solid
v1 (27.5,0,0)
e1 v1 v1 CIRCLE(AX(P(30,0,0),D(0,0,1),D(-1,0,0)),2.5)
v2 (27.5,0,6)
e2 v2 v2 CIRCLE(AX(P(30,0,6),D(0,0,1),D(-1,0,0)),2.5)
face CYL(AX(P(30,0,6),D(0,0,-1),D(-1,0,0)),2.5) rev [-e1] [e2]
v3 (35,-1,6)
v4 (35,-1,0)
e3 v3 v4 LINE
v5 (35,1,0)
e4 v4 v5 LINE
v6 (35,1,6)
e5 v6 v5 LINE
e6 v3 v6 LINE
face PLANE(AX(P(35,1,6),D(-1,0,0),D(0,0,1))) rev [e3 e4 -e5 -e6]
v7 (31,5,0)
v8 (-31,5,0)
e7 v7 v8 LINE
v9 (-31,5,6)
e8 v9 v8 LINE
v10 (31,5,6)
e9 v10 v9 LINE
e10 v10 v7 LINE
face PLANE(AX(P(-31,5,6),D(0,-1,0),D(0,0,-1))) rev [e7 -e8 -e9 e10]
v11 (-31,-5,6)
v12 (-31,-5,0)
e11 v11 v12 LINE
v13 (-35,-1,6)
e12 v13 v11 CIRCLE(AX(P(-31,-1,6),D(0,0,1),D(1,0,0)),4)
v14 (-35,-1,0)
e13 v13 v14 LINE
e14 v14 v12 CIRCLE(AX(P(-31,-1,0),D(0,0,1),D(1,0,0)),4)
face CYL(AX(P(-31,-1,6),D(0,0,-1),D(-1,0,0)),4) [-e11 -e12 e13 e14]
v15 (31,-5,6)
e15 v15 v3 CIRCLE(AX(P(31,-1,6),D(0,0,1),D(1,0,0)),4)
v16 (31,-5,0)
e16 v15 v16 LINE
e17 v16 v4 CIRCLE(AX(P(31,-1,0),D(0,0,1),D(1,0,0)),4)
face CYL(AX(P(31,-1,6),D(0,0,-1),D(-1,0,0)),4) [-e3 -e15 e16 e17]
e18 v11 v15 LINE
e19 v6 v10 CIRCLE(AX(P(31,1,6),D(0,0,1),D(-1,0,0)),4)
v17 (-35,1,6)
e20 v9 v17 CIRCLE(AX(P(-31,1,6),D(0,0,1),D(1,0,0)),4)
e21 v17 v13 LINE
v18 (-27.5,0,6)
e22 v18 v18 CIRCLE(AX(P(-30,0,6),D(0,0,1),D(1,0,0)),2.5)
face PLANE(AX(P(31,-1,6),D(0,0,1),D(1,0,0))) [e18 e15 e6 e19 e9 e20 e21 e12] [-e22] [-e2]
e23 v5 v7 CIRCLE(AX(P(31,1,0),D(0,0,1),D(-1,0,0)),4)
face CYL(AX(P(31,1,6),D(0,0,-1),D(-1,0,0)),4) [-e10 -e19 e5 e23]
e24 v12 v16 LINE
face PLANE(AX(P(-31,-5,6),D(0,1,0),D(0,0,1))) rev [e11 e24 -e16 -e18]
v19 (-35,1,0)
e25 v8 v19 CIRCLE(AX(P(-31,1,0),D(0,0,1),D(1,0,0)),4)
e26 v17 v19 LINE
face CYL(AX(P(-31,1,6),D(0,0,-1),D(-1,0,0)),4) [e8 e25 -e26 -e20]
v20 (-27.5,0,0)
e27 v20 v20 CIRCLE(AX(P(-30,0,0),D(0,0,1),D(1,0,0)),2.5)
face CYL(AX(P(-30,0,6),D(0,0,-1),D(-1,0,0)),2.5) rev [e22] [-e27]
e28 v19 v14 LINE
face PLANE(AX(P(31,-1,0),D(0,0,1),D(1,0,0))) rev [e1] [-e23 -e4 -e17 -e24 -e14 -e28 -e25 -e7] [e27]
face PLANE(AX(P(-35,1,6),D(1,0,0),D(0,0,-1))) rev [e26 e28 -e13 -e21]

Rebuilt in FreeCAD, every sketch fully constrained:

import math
import FreeCAD as App
import Part
import Sketcher
Q = App.Units.Quantity

doc = App.newDocument("Part")
params = doc.addObject("Spreadsheet::Sheet", "Params")
for row, (alias, value) in enumerate([
    ("sketch1_diameter", "5 mm"),
    ("sketch1_radius", "4 mm"),
    ("sketch1_width", "62 mm"),
    ("sketch1_height", "2 mm"),
    ("pad1_length", "6 mm"),
], start=1):
    params.set(f"A{row}", alias)
    params.set(f"B{row}", "=" + value)
    params.setAlias(f"B{row}", alias)

body = doc.addObject("PartDesign::Body", "Body")

sketch1 = body.newObject("Sketcher::SketchObject", "Sketch")
sketch1.AttachmentSupport = (doc.getObject("XY_Plane"), [""])
sketch1.MapMode = "FlatFace"
sketch1.addGeometry([
    Part.LineSegment(App.Vector(31, 5, 0), App.Vector(-31, 5, 0)),
    Part.ArcOfCircle(Part.Circle(App.Vector(-31, 1, 0), App.Vector(0, 0, 1), 4), math.radians(90), math.radians(180)),
    Part.LineSegment(App.Vector(-35, 1, 0), App.Vector(-35, -1, 0)),
    Part.ArcOfCircle(Part.Circle(App.Vector(-31, -1, 0), App.Vector(0, 0, 1), 4), math.radians(180), math.radians(270)),
    Part.LineSegment(App.Vector(-31, -5, 0), App.Vector(31, -5, 0)),
    Part.ArcOfCircle(Part.Circle(App.Vector(31, -1, 0), App.Vector(0, 0, 1), 4), math.radians(-90), math.radians(0)),
    Part.LineSegment(App.Vector(35, -1, 0), App.Vector(35, 1, 0)),
    Part.ArcOfCircle(Part.Circle(App.Vector(31, 1, 0), App.Vector(0, 0, 1), 4), math.radians(0), math.radians(90)),
    Part.Circle(App.Vector(30, 0, 0), App.Vector(0, 0, 1), 2.5),
    Part.Circle(App.Vector(-30, 0, 0), App.Vector(0, 0, 1), 2.5),
], False)
sketch1.addConstraint([
    Sketcher.Constraint("Tangent", 0, 2, 1, 1),
    Sketcher.Constraint("Tangent", 1, 2, 2, 1),
    Sketcher.Constraint("Tangent", 2, 2, 3, 1),
    Sketcher.Constraint("Tangent", 3, 2, 4, 1),
    Sketcher.Constraint("Tangent", 4, 2, 5, 1),
    Sketcher.Constraint("Tangent", 5, 2, 6, 1),
    Sketcher.Constraint("Tangent", 6, 2, 7, 1),
    Sketcher.Constraint("Tangent", 7, 2, 0, 1),
    Sketcher.Constraint("Horizontal", 0),
    Sketcher.Constraint("Vertical", 2),
    Sketcher.Constraint("Horizontal", 4),
    Sketcher.Constraint("Vertical", 6),
    Sketcher.Constraint("Equal", 1, 3),
    Sketcher.Constraint("Equal", 3, 5),
    Sketcher.Constraint("Equal", 5, 7),
    Sketcher.Constraint("Equal", 8, 9),
    Sketcher.Constraint("Symmetric", 1, 3, 5, 3, -1, 1),
    Sketcher.Constraint("Symmetric", 8, 3, 9, 3, -1, 1),
    Sketcher.Constraint("PointOnObject", 8, 3, -1),
    Sketcher.Constraint("Diameter", 8, Q("5 mm")),
    Sketcher.Constraint("Radius", 1, Q("4 mm")),
    Sketcher.Constraint("DistanceX", 0, 2, 0, 1, Q("62 mm")),
    Sketcher.Constraint("DistanceY", 2, 2, 2, 1, Q("2 mm")),
    Sketcher.Constraint("DistanceX", -1, 1, 8, 3, Q("30 mm")),
])
sketch1.setExpression("Constraints[19]", "Params.sketch1_diameter")
sketch1.setExpression("Constraints[20]", "Params.sketch1_radius")
sketch1.setExpression("Constraints[21]", "Params.sketch1_width")
sketch1.setExpression("Constraints[22]", "Params.sketch1_height")
pad1 = body.newObject("PartDesign::Pad", "Pad")
pad1.Profile = sketch1
pad1.setExpression("Length", "Params.pad1_length")

doc.recompute()
